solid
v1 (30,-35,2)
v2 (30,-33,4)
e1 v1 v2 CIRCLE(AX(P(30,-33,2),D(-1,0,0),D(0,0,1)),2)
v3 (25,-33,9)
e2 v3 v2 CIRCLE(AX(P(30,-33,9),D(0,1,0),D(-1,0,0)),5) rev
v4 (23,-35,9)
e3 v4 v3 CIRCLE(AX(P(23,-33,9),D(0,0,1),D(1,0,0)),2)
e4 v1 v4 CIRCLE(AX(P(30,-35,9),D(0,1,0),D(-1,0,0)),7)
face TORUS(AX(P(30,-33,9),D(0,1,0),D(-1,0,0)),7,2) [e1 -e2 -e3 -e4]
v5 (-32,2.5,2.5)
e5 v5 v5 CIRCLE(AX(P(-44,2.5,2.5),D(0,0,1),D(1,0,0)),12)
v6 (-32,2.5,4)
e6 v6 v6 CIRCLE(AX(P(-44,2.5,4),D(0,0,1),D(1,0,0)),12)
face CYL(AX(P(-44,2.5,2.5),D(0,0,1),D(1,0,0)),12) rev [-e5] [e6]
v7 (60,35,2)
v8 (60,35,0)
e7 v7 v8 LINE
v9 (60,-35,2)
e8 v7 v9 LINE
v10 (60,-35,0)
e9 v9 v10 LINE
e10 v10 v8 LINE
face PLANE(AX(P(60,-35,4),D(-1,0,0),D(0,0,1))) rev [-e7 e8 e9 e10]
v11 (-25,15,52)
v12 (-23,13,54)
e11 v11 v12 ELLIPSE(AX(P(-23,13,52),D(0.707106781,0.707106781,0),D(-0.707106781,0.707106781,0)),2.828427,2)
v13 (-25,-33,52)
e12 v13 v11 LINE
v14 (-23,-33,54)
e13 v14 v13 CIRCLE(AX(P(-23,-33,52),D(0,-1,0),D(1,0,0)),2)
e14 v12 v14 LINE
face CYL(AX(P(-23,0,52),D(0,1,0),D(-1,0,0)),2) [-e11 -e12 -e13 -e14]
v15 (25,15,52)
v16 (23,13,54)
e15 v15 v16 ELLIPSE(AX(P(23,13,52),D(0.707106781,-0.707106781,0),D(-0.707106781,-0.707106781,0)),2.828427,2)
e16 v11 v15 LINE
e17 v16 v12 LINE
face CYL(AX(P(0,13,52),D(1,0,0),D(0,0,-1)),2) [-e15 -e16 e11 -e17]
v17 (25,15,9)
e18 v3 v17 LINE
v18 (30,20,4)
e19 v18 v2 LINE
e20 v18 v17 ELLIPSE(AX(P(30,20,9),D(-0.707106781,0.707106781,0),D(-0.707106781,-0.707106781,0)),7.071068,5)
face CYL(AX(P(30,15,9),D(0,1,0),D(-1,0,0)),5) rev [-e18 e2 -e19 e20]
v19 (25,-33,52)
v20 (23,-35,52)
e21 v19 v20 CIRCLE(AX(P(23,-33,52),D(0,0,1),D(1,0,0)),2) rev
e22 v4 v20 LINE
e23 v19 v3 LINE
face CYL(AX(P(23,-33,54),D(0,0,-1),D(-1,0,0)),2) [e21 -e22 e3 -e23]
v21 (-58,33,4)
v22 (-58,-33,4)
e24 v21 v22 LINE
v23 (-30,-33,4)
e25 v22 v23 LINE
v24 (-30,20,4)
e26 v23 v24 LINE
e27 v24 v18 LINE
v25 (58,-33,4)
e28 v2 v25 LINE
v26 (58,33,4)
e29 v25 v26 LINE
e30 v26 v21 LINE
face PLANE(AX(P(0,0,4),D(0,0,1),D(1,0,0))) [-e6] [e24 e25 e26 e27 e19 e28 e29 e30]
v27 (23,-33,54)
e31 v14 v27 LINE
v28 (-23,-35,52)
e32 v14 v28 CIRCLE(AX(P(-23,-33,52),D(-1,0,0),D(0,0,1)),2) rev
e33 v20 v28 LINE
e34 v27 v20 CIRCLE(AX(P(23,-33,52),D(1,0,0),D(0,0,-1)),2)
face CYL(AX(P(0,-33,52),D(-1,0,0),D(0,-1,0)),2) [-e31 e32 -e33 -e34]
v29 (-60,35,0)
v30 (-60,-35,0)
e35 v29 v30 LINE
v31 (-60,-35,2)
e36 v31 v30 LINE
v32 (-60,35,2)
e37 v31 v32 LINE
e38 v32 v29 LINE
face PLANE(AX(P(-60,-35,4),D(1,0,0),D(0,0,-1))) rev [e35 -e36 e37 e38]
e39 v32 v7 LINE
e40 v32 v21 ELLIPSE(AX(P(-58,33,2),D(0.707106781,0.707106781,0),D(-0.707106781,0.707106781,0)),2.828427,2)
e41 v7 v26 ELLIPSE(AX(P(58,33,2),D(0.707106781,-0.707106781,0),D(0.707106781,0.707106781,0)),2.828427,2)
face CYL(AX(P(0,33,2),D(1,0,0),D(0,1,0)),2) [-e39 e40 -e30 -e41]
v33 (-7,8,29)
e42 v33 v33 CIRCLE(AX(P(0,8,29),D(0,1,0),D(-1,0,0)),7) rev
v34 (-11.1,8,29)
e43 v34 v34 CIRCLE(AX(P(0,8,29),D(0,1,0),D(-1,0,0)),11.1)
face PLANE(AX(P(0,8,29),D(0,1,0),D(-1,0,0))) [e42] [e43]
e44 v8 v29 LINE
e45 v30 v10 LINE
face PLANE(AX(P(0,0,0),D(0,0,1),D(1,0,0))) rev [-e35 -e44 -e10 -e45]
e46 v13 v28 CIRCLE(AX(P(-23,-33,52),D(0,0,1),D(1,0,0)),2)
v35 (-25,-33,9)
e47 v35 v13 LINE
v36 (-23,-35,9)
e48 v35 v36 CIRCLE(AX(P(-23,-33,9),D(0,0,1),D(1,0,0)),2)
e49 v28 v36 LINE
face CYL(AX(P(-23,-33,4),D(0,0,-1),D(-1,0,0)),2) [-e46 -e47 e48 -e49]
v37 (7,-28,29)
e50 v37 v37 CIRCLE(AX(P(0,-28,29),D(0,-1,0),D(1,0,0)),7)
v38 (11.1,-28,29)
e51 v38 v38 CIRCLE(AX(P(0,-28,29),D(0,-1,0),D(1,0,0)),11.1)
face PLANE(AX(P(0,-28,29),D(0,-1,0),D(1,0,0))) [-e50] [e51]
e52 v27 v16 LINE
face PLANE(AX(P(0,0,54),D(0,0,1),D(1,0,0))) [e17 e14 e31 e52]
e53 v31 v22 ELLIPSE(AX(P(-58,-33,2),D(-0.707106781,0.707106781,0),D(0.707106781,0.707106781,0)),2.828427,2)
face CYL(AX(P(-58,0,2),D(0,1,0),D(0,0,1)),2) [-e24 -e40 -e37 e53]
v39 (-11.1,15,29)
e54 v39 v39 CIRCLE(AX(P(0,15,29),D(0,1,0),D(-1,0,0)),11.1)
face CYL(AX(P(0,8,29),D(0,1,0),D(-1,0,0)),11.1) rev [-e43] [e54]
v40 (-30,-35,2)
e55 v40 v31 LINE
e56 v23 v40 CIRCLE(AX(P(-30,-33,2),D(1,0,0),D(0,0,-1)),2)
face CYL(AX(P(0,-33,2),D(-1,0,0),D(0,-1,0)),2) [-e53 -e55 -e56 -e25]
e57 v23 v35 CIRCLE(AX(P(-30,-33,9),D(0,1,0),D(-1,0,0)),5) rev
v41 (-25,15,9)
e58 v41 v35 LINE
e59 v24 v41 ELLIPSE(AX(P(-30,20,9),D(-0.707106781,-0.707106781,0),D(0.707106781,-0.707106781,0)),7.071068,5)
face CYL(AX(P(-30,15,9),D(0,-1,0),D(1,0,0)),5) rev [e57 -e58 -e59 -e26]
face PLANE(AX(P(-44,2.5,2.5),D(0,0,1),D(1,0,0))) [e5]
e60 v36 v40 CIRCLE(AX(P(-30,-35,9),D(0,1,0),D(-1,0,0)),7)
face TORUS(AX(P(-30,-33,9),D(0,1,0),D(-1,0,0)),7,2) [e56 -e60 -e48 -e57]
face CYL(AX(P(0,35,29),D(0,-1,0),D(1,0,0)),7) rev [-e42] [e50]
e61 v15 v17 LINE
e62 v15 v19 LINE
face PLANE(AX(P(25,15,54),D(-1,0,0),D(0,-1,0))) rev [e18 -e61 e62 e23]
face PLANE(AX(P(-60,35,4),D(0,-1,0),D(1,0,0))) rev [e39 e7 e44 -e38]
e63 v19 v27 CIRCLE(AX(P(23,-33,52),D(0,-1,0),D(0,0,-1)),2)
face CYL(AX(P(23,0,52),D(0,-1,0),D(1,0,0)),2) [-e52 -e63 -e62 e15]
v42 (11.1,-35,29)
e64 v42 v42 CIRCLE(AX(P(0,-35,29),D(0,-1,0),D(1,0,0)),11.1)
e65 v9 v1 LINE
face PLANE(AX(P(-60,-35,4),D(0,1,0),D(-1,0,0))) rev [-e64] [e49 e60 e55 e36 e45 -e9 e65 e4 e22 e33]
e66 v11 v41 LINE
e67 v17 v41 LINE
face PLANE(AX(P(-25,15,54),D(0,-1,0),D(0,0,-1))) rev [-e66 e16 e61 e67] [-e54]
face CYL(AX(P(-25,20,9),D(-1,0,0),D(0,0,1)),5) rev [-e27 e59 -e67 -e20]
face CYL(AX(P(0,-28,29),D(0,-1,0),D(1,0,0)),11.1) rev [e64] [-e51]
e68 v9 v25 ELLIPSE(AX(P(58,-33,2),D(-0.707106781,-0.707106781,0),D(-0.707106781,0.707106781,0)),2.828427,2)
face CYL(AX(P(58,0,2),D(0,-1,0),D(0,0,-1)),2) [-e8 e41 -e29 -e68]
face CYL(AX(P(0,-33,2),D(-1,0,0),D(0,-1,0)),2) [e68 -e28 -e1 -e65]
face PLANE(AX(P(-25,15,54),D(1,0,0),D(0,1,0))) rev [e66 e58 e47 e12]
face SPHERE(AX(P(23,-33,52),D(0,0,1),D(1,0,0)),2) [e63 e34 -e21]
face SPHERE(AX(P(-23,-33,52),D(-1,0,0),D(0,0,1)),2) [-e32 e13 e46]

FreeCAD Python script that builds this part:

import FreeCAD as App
import Part
import Sketcher

V = App.Vector


def edges_at(feature, points):
    """Names of the edges that pass closest to the given points."""
    edges = feature.Shape.Edges
    near = lambda p: min(range(len(edges)), key=lambda i: edges[i].distToShape(Part.Vertex(*p))[0])
    return sorted({f"Edge{near(p) + 1}" for p in points})


def add_polygon(sketch, points):
    """Adds a closed chain of lines whose ends are joined by coincident constraints."""
    first, n = sketch.GeometryCount, len(points)
    for a, b in zip(points, points[1:] + points[:1]):
        sketch.addGeometry(Part.LineSegment(App.Vector(*a, 0), App.Vector(*b, 0)), False)
    for i in range(n):
        sketch.addConstraint(Sketcher.Constraint("Coincident", first + i, 2, first + (i + 1) % n, 1))

doc = App.newDocument("Part")
params = doc.addObject("Spreadsheet::Sheet", "Params")
for row, (alias, value) in enumerate([
    ("sketch1_width", "120 mm"),
    ("sketch1_height", "70 mm"),
    ("pad1_length", "4 mm"),
    ("sketch2_width", "50 mm"),
    ("pad2_length", "50 mm"),
    ("sketch3_diameter", "22.2 mm"),
    ("pocket1_length", "7 mm"),
    ("sketch4_diameter", "14 mm"),
    ("sketch5_diameter", "22.2 mm"),
    ("pocket3_length", "7 mm"),
    ("sketch6_diameter", "24 mm"),
    ("pocket4_length", "1.5 mm"),
    ("fillet_radius", "5 mm"),
    ("fillet2_radius", "2 mm"),
], start=1):
    params.set(f"A{row}", alias)
    params.set(f"B{row}", "=" + value)
    params.setAlias(f"B{row}", alias)

body = doc.addObject("PartDesign::Body", "Body")

sketch1 = doc.addObject("Sketcher::SketchObject", "Sketch")
body.addObject(sketch1)
sketch1.AttachmentSupport = (doc.XY_Plane, [""])
sketch1.MapMode = "FlatFace"
add_polygon(sketch1, [(-60, -35), (60, -35), (60, 35), (-60, 35)])
sketch1.addConstraint([
    Sketcher.Constraint("Horizontal", 0),
    Sketcher.Constraint("Vertical", 1),
    Sketcher.Constraint("Horizontal", 2),
    Sketcher.Constraint("Vertical", 3),
    Sketcher.Constraint("Symmetric", 0, 2, 2, 2, -1, 1),
    Sketcher.Constraint("DistanceX", 0, 1, 0, 2, 120.0),
    Sketcher.Constraint("DistanceY", 1, 1, 1, 2, 70.0),
])
sketch1.setExpression("Constraints[9]", "Params.sketch1_width")
sketch1.setExpression("Constraints[10]", "Params.sketch1_height")
pad1 = doc.addObject("PartDesign::Pad", "Pad")
body.addObject(pad1)
pad1.Profile = sketch1
pad1.setExpression("Length", "Params.pad1_length")

sketch2 = doc.addObject("Sketcher::SketchObject", "Sketch001")
body.addObject(sketch2)
sketch2.AttachmentSupport = (doc.XY_Plane, [""])
sketch2.MapMode = "FlatFace"
sketch2.AttachmentOffset = App.Placement(V(0, 0, 4), App.Rotation())
add_polygon(sketch2, [(-25, 15), (-25, -35), (25, -35), (25, 15)])
sketch2.addConstraint([
    Sketcher.Constraint("Vertical", 0),
    Sketcher.Constraint("Horizontal", 1),
    Sketcher.Constraint("Vertical", 2),
    Sketcher.Constraint("Horizontal", 3),
    Sketcher.Constraint("Equal", 3, 0),
    Sketcher.Constraint("DistanceX", 1, 1, 1, 2, 50.0),
    Sketcher.Constraint("DistanceX", 0, 2, -1, 1, 25.0),
    Sketcher.Constraint("DistanceY", 0, 2, -1, 1, 35.0),
])
sketch2.setExpression("Constraints[9]", "Params.sketch2_width")
pad2 = doc.addObject("PartDesign::Pad", "Pad001")
body.addObject(pad2)
pad2.Profile = sketch2
pad2.setExpression("Length", "Params.pad2_length")

sketch3 = doc.addObject("Sketcher::SketchObject", "Sketch002")
body.addObject(sketch3)
sketch3.AttachmentSupport = (doc.XZ_Plane, [""])
sketch3.MapMode = "FlatFace"
sketch3.AttachmentOffset = App.Placement(V(0, 0, 35), App.Rotation())
sketch3.addGeometry(Part.Circle(V(0, 29, 0), V(0, 0, 1), 11.1), False)
sketch3.addConstraint([
    Sketcher.Constraint("PointOnObject", 0, 3, -2),
    Sketcher.Constraint("Diameter", 0, 22.2),
    Sketcher.Constraint("DistanceY", -1, 1, 0, 3, 29.0),
])
sketch3.setExpression("Constraints[1]", "Params.sketch3_diameter")
pocket1 = doc.addObject("PartDesign::Pocket", "Pocket")
body.addObject(pocket1)
pocket1.Profile = sketch3
pocket1.setExpression("Length", "Params.pocket1_length")

sketch4 = doc.addObject("Sketcher::SketchObject", "Sketch003")
body.addObject(sketch4)
sketch4.AttachmentSupport = (doc.XZ_Plane, [""])
sketch4.MapMode = "FlatFace"
sketch4.AttachmentOffset = App.Placement(V(0, 0, 28), App.Rotation())
sketch4.addGeometry(Part.Circle(V(0, 29, 0), V(0, 0, 1), 7), False)
sketch4.addConstraint([
    Sketcher.Constraint("PointOnObject", 0, 3, -2),
    Sketcher.Constraint("Diameter", 0, 14.0),
    Sketcher.Constraint("DistanceY", -1, 1, 0, 3, 29.0),
])
sketch4.setExpression("Constraints[1]", "Params.sketch4_diameter")
pocket2 = doc.addObject("PartDesign::Pocket", "Pocket001")
body.addObject(pocket2)
pocket2.Profile = sketch4
pocket2.Type = "ThroughAll"

sketch5 = doc.addObject("Sketcher::SketchObject", "Sketch004")
body.addObject(sketch5)
sketch5.AttachmentSupport = (doc.XZ_Plane, [""])
sketch5.MapMode = "FlatFace"
sketch5.AttachmentOffset = App.Placement(V(0, 0, -8), App.Rotation())
sketch5.addGeometry(Part.Circle(V(0, 29, 0), V(0, 0, 1), 11.1), False)
sketch5.addConstraint([
    Sketcher.Constraint("PointOnObject", 0, 3, -2),
    Sketcher.Constraint("Diameter", 0, 22.2),
    Sketcher.Constraint("DistanceY", -1, 1, 0, 3, 29.0),
])
sketch5.setExpression("Constraints[1]", "Params.sketch5_diameter")
pocket3 = doc.addObject("PartDesign::Pocket", "Pocket002")
body.addObject(pocket3)
pocket3.Profile = sketch5
pocket3.setExpression("Length", "Params.pocket3_length")

sketch6 = doc.addObject("Sketcher::SketchObject", "Sketch005")
body.addObject(sketch6)
sketch6.AttachmentSupport = (doc.XY_Plane, [""])
sketch6.MapMode = "FlatFace"
sketch6.AttachmentOffset = App.Placement(V(0, 0, 4), App.Rotation())
sketch6.addGeometry(Part.Circle(V(-44, 2.5, 0), V(0, 0, 1), 12), False)
sketch6.addConstraint([
    Sketcher.Constraint("Diameter", 0, 24.0),
    Sketcher.Constraint("DistanceX", 0, 3, -1, 1, 44.0),
    Sketcher.Constraint("DistanceY", -1, 1, 0, 3, 2.5),
])
sketch6.setExpression("Constraints[0]", "Params.sketch6_diameter")
pocket4 = doc.addObject("PartDesign::Pocket", "Pocket003")
body.addObject(pocket4)
pocket4.Profile = sketch6
pocket4.setExpression("Length", "Params.pocket4_length")
doc.recompute()

fillet = doc.addObject("PartDesign::Fillet", "Fillet")
body.addObject(fillet)
fillet.Base = (pocket4, edges_at(pocket4, [(25, -10, 4), (0, 15, 4), (-25, -10, 4)]))
fillet.setExpression("Radius", "Params.fillet_radius")
doc.recompute()

fillet2 = doc.addObject("PartDesign::Fillet", "Fillet001")
body.addObject(fillet2)
fillet2.Base = (fillet, edges_at(fillet, [
    (-45, -35, 4),
    (25, -35, 31.5),
    (60, 0, 4),
    (-25, -35, 31.5),
    (25, -10, 54),
    (0, 15, 54),
    (-25, -10, 54),
    (0, -35, 54),
    (0, 35, 4),
    (45, -35, 4),
    (26.464, -35, 5.464),
    (-26.464, -35, 5.464),
    (-60, 0, 4),
]))
fillet2.setExpression("Radius", "Params.fillet2_radius")

doc.recompute()
